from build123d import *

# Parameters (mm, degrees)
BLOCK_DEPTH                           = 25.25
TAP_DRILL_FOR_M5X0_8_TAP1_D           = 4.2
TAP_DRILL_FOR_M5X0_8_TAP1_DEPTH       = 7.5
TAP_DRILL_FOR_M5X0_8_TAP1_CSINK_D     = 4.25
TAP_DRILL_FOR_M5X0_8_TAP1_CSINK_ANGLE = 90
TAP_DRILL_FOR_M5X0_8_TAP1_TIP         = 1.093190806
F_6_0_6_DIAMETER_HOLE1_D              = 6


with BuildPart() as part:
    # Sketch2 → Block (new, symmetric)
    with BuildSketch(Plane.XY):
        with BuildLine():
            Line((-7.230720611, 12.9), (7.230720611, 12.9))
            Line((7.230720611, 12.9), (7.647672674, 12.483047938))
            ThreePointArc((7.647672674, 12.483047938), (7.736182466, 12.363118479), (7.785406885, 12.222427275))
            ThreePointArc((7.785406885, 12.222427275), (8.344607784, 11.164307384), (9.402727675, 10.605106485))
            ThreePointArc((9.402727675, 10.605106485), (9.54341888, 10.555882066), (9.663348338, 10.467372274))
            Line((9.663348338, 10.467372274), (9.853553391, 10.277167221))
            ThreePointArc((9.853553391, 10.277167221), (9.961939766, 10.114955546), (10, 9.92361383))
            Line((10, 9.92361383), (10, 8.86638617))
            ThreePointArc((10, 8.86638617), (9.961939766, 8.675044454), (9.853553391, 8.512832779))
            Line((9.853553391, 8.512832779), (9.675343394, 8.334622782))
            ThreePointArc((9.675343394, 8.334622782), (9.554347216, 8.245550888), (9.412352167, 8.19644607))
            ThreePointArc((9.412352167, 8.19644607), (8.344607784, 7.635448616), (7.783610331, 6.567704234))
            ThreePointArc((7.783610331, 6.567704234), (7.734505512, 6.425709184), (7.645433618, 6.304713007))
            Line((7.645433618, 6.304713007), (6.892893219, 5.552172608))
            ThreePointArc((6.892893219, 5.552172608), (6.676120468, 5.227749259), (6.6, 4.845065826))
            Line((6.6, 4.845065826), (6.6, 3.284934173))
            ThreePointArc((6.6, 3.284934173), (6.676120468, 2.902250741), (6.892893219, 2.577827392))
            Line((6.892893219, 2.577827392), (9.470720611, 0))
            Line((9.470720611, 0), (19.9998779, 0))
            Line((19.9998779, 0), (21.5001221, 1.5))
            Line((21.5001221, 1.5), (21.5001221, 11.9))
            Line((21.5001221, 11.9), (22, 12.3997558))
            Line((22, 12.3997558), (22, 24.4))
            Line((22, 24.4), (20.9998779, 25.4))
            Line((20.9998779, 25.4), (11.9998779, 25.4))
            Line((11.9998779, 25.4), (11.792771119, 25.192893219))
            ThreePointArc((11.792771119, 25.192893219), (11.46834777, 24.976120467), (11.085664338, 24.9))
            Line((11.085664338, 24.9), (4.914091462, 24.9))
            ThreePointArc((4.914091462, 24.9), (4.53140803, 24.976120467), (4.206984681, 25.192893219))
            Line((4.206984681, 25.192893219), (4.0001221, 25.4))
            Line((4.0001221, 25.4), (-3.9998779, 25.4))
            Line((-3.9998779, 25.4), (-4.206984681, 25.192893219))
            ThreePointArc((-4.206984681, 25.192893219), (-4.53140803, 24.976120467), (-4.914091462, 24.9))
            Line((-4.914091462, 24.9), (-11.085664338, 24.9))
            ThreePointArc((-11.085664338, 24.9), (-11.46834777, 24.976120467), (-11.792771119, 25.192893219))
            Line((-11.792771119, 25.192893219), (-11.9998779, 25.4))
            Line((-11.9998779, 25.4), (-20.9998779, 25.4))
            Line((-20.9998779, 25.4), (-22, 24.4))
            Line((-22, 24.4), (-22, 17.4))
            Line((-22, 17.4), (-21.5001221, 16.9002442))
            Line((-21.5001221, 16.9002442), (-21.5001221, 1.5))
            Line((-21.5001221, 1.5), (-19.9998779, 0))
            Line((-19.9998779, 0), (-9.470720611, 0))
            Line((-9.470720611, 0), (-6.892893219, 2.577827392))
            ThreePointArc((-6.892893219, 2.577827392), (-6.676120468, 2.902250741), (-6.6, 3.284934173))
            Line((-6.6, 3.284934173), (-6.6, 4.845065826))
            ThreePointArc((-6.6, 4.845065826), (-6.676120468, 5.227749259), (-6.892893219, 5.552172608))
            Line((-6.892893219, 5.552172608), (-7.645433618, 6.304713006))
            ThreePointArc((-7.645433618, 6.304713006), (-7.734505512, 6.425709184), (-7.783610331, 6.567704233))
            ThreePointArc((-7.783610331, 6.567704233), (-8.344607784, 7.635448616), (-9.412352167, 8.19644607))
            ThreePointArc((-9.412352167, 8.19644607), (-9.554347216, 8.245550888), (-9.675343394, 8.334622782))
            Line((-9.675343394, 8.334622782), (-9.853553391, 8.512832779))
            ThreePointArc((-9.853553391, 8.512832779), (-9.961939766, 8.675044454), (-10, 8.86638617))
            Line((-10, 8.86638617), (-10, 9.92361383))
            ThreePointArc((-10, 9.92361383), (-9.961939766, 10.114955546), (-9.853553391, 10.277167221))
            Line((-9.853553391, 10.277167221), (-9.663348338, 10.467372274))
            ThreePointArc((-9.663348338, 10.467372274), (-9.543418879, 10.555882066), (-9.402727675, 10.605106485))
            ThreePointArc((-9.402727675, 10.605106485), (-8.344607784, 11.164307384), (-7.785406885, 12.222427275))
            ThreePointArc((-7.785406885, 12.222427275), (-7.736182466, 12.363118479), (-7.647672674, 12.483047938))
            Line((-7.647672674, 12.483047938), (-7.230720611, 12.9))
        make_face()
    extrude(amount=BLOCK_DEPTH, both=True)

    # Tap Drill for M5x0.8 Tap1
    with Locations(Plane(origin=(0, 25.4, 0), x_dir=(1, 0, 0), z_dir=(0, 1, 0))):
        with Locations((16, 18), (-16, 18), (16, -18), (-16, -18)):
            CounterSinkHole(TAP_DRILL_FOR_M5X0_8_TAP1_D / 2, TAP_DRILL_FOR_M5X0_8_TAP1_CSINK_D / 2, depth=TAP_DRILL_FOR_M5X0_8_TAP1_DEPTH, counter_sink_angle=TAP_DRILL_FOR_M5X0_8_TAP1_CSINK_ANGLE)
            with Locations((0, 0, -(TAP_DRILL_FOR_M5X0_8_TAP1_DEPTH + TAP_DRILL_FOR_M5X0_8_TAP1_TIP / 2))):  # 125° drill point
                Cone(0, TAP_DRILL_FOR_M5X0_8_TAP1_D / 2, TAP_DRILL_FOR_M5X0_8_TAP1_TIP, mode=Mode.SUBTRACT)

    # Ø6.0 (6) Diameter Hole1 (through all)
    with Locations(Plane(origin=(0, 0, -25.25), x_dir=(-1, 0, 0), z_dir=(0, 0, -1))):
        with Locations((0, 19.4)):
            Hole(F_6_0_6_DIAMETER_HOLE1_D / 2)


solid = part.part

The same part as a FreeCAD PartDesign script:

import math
import FreeCAD as App
import Part
import Sketcher

V = App.Vector

doc = App.newDocument("Part")
body = doc.addObject("PartDesign::Body", "Body")

sketch1 = body.newObject("Sketcher::SketchObject", "Sketch")
sketch1.AttachmentSupport = (doc.getObject("XY_Plane"), [""])
sketch1.MapMode = "FlatFace"
sketch1.addGeometry([
    Part.LineSegment(V(-7.23, 12.9, 0), V(7.23, 12.9, 0)),
    Part.LineSegment(V(7.23, 12.9, 0), V(7.65, 12.48, 0)),
    Part.ArcOfCircle(Part.Circle(V(7.29, 12.13, 0), V(0, 0, 1), 0.5), math.radians(11), math.radians(45)),
    Part.ArcOfCircle(Part.Circle(V(9.78, 12.6, 0), V(0, 0, 1), 2.03), math.radians(-169), math.radians(-101)),
    Part.ArcOfCircle(Part.Circle(V(9.31, 10.11, 0), V(0, 0, 1), 0.5), math.radians(45), math.radians(79)),
    Part.LineSegment(V(9.66, 10.47, 0), V(9.85, 10.28, 0)),
    Part.ArcOfCircle(Part.Circle(V(9.5, 9.92, 0), V(0, 0, 1), 0.5), math.radians(0), math.radians(45)),
    Part.LineSegment(V(10, 9.92, 0), V(10, 8.87, 0)),
    Part.ArcOfCircle(Part.Circle(V(9.5, 8.87, 0), V(0, 0, 1), 0.5), math.radians(-45), math.radians(0)),
    Part.LineSegment(V(9.85, 8.51, 0), V(9.68, 8.33, 0)),
    Part.ArcOfCircle(Part.Circle(V(9.32, 8.69, 0), V(0, 0, 1), 0.5), math.radians(-80), math.radians(-45)),
    Part.ArcOfCircle(Part.Circle(V(9.78, 6.2, 0), V(0, 0, 1), 2.03), math.radians(100), math.radians(170)),
    Part.ArcOfCircle(Part.Circle(V(7.29, 6.66, 0), V(0, 0, 1), 0.5), math.radians(-45), math.radians(-10)),
    Part.LineSegment(V(7.65, 6.3, 0), V(6.89, 5.55, 0)),
    Part.ArcOfCircle(Part.Circle(V(7.6, 4.85, 0), V(0, 0, 1), 1), math.radians(135), math.radians(180)),
    Part.LineSegment(V(6.6, 4.85, 0), V(6.6, 3.28, 0)),
    Part.ArcOfCircle(Part.Circle(V(7.6, 3.28, 0), V(0, 0, 1), 1), math.radians(-180), math.radians(-135)),
    Part.LineSegment(V(6.89, 2.58, 0), V(9.47, 0, 0)),
    Part.LineSegment(V(9.47, 0, 0), V(20, 0, 0)),
    Part.LineSegment(V(20, 0, 0), V(21.5, 1.5, 0)),
    Part.LineSegment(V(21.5, 1.5, 0), V(21.5, 11.9, 0)),
    Part.LineSegment(V(21.5, 11.9, 0), V(22, 12.4, 0)),
    Part.LineSegment(V(22, 12.4, 0), V(22, 24.4, 0)),
    Part.LineSegment(V(22, 24.4, 0), V(21, 25.4, 0)),
    Part.LineSegment(V(21, 25.4, 0), V(12, 25.4, 0)),
    Part.LineSegment(V(12, 25.4, 0), V(11.79, 25.19, 0)),
    Part.ArcOfCircle(Part.Circle(V(11.09, 25.9, 0), V(0, 0, 1), 1), math.radians(-90), math.radians(-45)),
    Part.LineSegment(V(11.09, 24.9, 0), V(4.91, 24.9, 0)),
    Part.ArcOfCircle(Part.Circle(V(4.91, 25.9, 0), V(0, 0, 1), 1), math.radians(-135), math.radians(-90)),
    Part.LineSegment(V(4.21, 25.19, 0), V(4, 25.4, 0)),
    Part.LineSegment(V(4, 25.4, 0), V(-4, 25.4, 0)),
    Part.LineSegment(V(-4, 25.4, 0), V(-4.21, 25.19, 0)),
    Part.ArcOfCircle(Part.Circle(V(-4.91, 25.9, 0), V(0, 0, 1), 1), math.radians(-90), math.radians(-45)),
    Part.LineSegment(V(-4.91, 24.9, 0), V(-11.09, 24.9, 0)),
    Part.ArcOfCircle(Part.Circle(V(-11.09, 25.9, 0), V(0, 0, 1), 1), math.radians(-135), math.radians(-90)),
    Part.LineSegment(V(-11.79, 25.19, 0), V(-12, 25.4, 0)),
    Part.LineSegment(V(-12, 25.4, 0), V(-21, 25.4, 0)),
    Part.LineSegment(V(-21, 25.4, 0), V(-22, 24.4, 0)),
    Part.LineSegment(V(-22, 24.4, 0), V(-22, 17.4, 0)),
    Part.LineSegment(V(-22, 17.4, 0), V(-21.5, 16.9, 0)),
    Part.LineSegment(V(-21.5, 16.9, 0), V(-21.5, 1.5, 0)),
    Part.LineSegment(V(-21.5, 1.5, 0), V(-20, 0, 0)),
    Part.LineSegment(V(-20, 0, 0), V(-9.47, 0, 0)),
    Part.LineSegment(V(-9.47, 0, 0), V(-6.89, 2.58, 0)),
    Part.ArcOfCircle(Part.Circle(V(-7.6, 3.28, 0), V(0, 0, 1), 1), math.radians(-45), math.radians(0)),
    Part.LineSegment(V(-6.6, 3.28, 0), V(-6.6, 4.85, 0)),
    Part.ArcOfCircle(Part.Circle(V(-7.6, 4.85, 0), V(0, 0, 1), 1), math.radians(0), math.radians(45)),
    Part.LineSegment(V(-6.89, 5.55, 0), V(-7.65, 6.3, 0)),
    Part.ArcOfCircle(Part.Circle(V(-7.29, 6.66, 0), V(0, 0, 1), 0.5), math.radians(-170), math.radians(-135)),
    Part.ArcOfCircle(Part.Circle(V(-9.78, 6.2, 0), V(0, 0, 1), 2.03), math.radians(10), math.radians(80)),
    Part.ArcOfCircle(Part.Circle(V(-9.32, 8.69, 0), V(0, 0, 1), 0.5), math.radians(-135), math.radians(-100)),
    Part.LineSegment(V(-9.68, 8.33, 0), V(-9.85, 8.51, 0)),
    Part.ArcOfCircle(Part.Circle(V(-9.5, 8.87, 0), V(0, 0, 1), 0.5), math.radians(-180), math.radians(-135)),
    Part.LineSegment(V(-10, 8.87, 0), V(-10, 9.92, 0)),
    Part.ArcOfCircle(Part.Circle(V(-9.5, 9.92, 0), V(0, 0, 1), 0.5), math.radians(135), math.radians(180)),
    Part.LineSegment(V(-9.85, 10.28, 0), V(-9.66, 10.47, 0)),
    Part.ArcOfCircle(Part.Circle(V(-9.31, 10.11, 0), V(0, 0, 1), 0.5), math.radians(101), math.radians(135)),
    Part.ArcOfCircle(Part.Circle(V(-9.78, 12.6, 0), V(0, 0, 1), 2.03), math.radians(-79), math.radians(-11)),
    Part.ArcOfCircle(Part.Circle(V(-7.29, 12.13, 0), V(0, 0, 1), 0.5), math.radians(135), math.radians(169)),
    Part.LineSegment(V(-7.65, 12.48, 0), V(-7.23, 12.9, 0)),
], False)
sketch1.addConstraint([
    Sketcher.Constraint("Coincident", 0, 2, 1, 1),
    Sketcher.Constraint("Tangent", 1, 2, 2, 2),
    Sketcher.Constraint("Tangent", 2, 1, 3, 1),
    Sketcher.Constraint("Tangent", 3, 2, 4, 2),
    Sketcher.Constraint("Tangent", 4, 1, 5, 1),
    Sketcher.Constraint("Tangent", 5, 2, 6, 2),
    Sketcher.Constraint("Tangent", 6, 1, 7, 1),
    Sketcher.Constraint("Tangent", 7, 2, 8, 2),
    Sketcher.Constraint("Tangent", 8, 1, 9, 1),
    Sketcher.Constraint("Tangent", 9, 2, 10, 2),
    Sketcher.Constraint("Tangent", 10, 1, 11, 1),
    Sketcher.Constraint("Tangent", 11, 2, 12, 2),
    Sketcher.Constraint("Tangent", 12, 1, 13, 1),
    Sketcher.Constraint("Tangent", 13, 2, 14, 1),
    Sketcher.Constraint("Tangent", 14, 2, 15, 1),
    Sketcher.Constraint("Tangent", 15, 2, 16, 1),
    Sketcher.Constraint("Tangent", 16, 2, 17, 1),
    Sketcher.Constraint("Coincident", 17, 2, 18, 1),
    Sketcher.Constraint("Coincident", 18, 2, 19, 1),
    Sketcher.Constraint("Coincident", 19, 2, 20, 1),
    Sketcher.Constraint("Coincident", 20, 2, 21, 1),
    Sketcher.Constraint("Coincident", 21, 2, 22, 1),
    Sketcher.Constraint("Coincident", 22, 2, 23, 1),
    Sketcher.Constraint("Coincident", 23, 2, 24, 1),
    Sketcher.Constraint("Coincident", 24, 2, 25, 1),
    Sketcher.Constraint("Tangent", 25, 2, 26, 2),
    Sketcher.Constraint("Tangent", 26, 1, 27, 1),
    Sketcher.Constraint("Tangent", 27, 2, 28, 2),
    Sketcher.Constraint("Coincident", 28, 1, 29, 1),
    Sketcher.Constraint("Coincident", 29, 2, 30, 1),
    Sketcher.Constraint("Coincident", 30, 2, 31, 1),
    Sketcher.Constraint("Tangent", 31, 2, 32, 2),
    Sketcher.Constraint("Tangent", 32, 1, 33, 1),
    Sketcher.Constraint("Tangent", 33, 2, 34, 2),
    Sketcher.Constraint("Tangent", 34, 1, 35, 1),
    Sketcher.Constraint("Coincident", 35, 2, 36, 1),
    Sketcher.Constraint("Coincident", 36, 2, 37, 1),
    Sketcher.Constraint("Coincident", 37, 2, 38, 1),
    Sketcher.Constraint("Coincident", 38, 2, 39, 1),
    Sketcher.Constraint("Coincident", 39, 2, 40, 1),
    Sketcher.Constraint("Coincident", 40, 2, 41, 1),
    Sketcher.Constraint("Coincident", 41, 2, 42, 1),
    Sketcher.Constraint("Coincident", 42, 2, 43, 1),
    Sketcher.Constraint("Tangent", 43, 2, 44, 1),
    Sketcher.Constraint("Tangent", 44, 2, 45, 1),
    Sketcher.Constraint("Tangent", 45, 2, 46, 1),
    Sketcher.Constraint("Tangent", 46, 2, 47, 1),
    Sketcher.Constraint("Tangent", 47, 2, 48, 2),
    Sketcher.Constraint("Tangent", 48, 1, 49, 1),
    Sketcher.Constraint("Tangent", 49, 2, 50, 2),
    Sketcher.Constraint("Tangent", 50, 1, 51, 1),
    Sketcher.Constraint("Tangent", 51, 2, 52, 2),
    Sketcher.Constraint("Tangent", 52, 1, 53, 1),
    Sketcher.Constraint("Tangent", 53, 2, 54, 2),
    Sketcher.Constraint("Tangent", 54, 1, 55, 1),
    Sketcher.Constraint("Tangent", 55, 2, 56, 2),
    Sketcher.Constraint("Tangent", 56, 1, 57, 1),
    Sketcher.Constraint("Tangent", 57, 2, 58, 2),
    Sketcher.Constraint("Tangent", 58, 1, 59, 1),
    Sketcher.Constraint("Coincident", 59, 2, 0, 1),
    Sketcher.Constraint("Horizontal", 0),
    Sketcher.Constraint("Vertical", 7),
    Sketcher.Constraint("Vertical", 15),
    Sketcher.Constraint("Horizontal", 18),
    Sketcher.Constraint("Vertical", 20),
    Sketcher.Constraint("Vertical", 22),
    Sketcher.Constraint("Horizontal", 24),
    Sketcher.Constraint("Horizontal", 27),
    Sketcher.Constraint("Horizontal", 30),
    Sketcher.Constraint("Horizontal", 33),
    Sketcher.Constraint("Horizontal", 36),
    Sketcher.Constraint("Vertical", 38),
    Sketcher.Constraint("Vertical", 40),
    Sketcher.Constraint("Horizontal", 42),
    Sketcher.Constraint("Vertical", 45),
    Sketcher.Constraint("Vertical", 53),
    Sketcher.Constraint("Equal", 2, 4),
    Sketcher.Constraint("Equal", 4, 6),
    Sketcher.Constraint("Equal", 6, 8),
    Sketcher.Constraint("Equal", 8, 10),
    Sketcher.Constraint("Equal", 3, 11),
    Sketcher.Constraint("Equal", 10, 12),
    Sketcher.Constraint("Equal", 14, 16),
    Sketcher.Constraint("Equal", 16, 26),
    Sketcher.Constraint("Equal", 26, 28),
    Sketcher.Constraint("Equal", 28, 32),
    Sketcher.Constraint("Equal", 32, 34),
    Sketcher.Constraint("Equal", 34, 44),
    Sketcher.Constraint("Equal", 44, 46),
    Sketcher.Constraint("Equal", 12, 48),
    Sketcher.Constraint("Equal", 11, 49),
    Sketcher.Constraint("Equal", 48, 50),
    Sketcher.Constraint("Equal", 50, 52),
    Sketcher.Constraint("Equal", 52, 54),
    Sketcher.Constraint("Equal", 54, 56),
    Sketcher.Constraint("Equal", 49, 57),
    Sketcher.Constraint("Equal", 56, 58),
    Sketcher.Constraint("Symmetric", 18, 2, 41, 2, -1, 1),
    Sketcher.Constraint("Symmetric", 28, 3, 32, 3, -2),
    Sketcher.Constraint("Symmetric", 16, 3, 44, 3, -2),
    Sketcher.Constraint("Symmetric", 12, 3, 48, 3, -2),
    Sketcher.Constraint("Symmetric", 10, 3, 50, 3, -2),
    Sketcher.Constraint("Symmetric", 8, 3, 52, 3, -2),
    Sketcher.Constraint("Symmetric", 4, 3, 56, 3, -2),
    Sketcher.Constraint("Symmetric", 2, 3, 58, 3, -2),
    Sketcher.Constraint("Symmetric", 25, 2, 34, 1, -2),
    Sketcher.Constraint("Symmetric", 23, 2, 36, 2, -2),
    Sketcher.Constraint("Symmetric", 22, 2, 37, 2, -2),
    Sketcher.Constraint("Symmetric", 19, 2, 40, 2, -2),
    Sketcher.Constraint("Symmetric", 17, 2, 42, 2, -2),
    Sketcher.Constraint("Parallel", 1, 5),
    Sketcher.Constraint("Perpendicular", 5, 9),
    Sketcher.Constraint("Parallel", 9, 13),
    Sketcher.Constraint("Perpendicular", 13, 17),
    Sketcher.Constraint("Perpendicular", 17, 25),
    Sketcher.Constraint("Parallel", 25, 31),
    Sketcher.Constraint("Perpendicular", 31, 35),
    Sketcher.Constraint("Perpendicular", 43, 47),
    Sketcher.Constraint("Perpendicular", 51, 55),
    Sketcher.Constraint("Parallel", 55, 59),
    Sketcher.Constraint("Horizontal", 25, 2, 28, 1),
    Sketcher.Constraint("Horizontal", 24, 2, 29, 2),
    Sketcher.Constraint("Vertical", 3, 3, 11, 3),
    Sketcher.Constraint("Equal", 21, 39),
    Sketcher.Constraint("Radius", 14, 1.0),
    Sketcher.Constraint("Radius", 2, 0.5),
    Sketcher.Constraint("DistanceX", 24, 2, 24, 1, 9.0),
    Sketcher.Constraint("DistanceX", 30, 2, 30, 1, 8.0),
    Sketcher.Constraint("DistanceY", 38, 2, 38, 1, 7.0),
    Sketcher.Constraint("Radius", 3, 2.03),
    Sketcher.Constraint("DistanceY", 20, 1, 20, 2, 10.4),
    Sketcher.Constraint("DistanceX", -1, 1, 6, 1, 10.0),
    Sketcher.Constraint("DistanceX", -1, 1, 21, 2, 22.0),
    Sketcher.Constraint("DistanceX", -1, 1, 14, 3, 7.6),
    Sketcher.Constraint("DistanceY", -1, 1, 26, 3, 25.9),
    Sketcher.Constraint("DistanceY", -1, 1, 0, 2, 12.9),
    Sketcher.Constraint("DistanceY", -1, 1, 19, 2, 1.5),
    Sketcher.Constraint("DistanceY", -1, 1, 22, 2, 24.4),
    Sketcher.Constraint("DistanceY", -1, 1, 23, 2, 25.4),
    Sketcher.Constraint("Distance", 17, 3.645598),
    Sketcher.Constraint("Distance", 23, 1.4143),
    Sketcher.Constraint("DistanceX", 0, 1, 0, 2, 14.461441),
    Sketcher.Constraint("DistanceY", 15, 2, 15, 1, 1.560132),
    Sketcher.Constraint("Distance", 1, 0.589659),
    Sketcher.Constraint("Distance", 5, 0.268991),
    Sketcher.Constraint("Distance", 29, 0.292721),
    Sketcher.Constraint("DistanceX", 18, 1, 18, 2, 10.529157),
    Sketcher.Constraint("DistanceY", 7, 2, 7, 1, 1.057228),
    Sketcher.Constraint("DistanceY", 22, 1, 22, 2, 12.000244),
    Sketcher.Constraint("DistanceY", -1, 1, 4, 3, 10.113819),
    Sketcher.Constraint("DistanceX", -1, 1, 10, 3, 9.32179),
    Sketcher.Constraint("Distance", 19, 2.121493),
])
pad1 = body.newObject("PartDesign::Pad", "Pad")
pad1.Profile = sketch1
pad1.Length = 50.5
pad1.Midplane = True

sketch2 = body.newObject("Sketcher::SketchObject", "Sketch001")
sketch2.AttachmentSupport = (doc.getObject("XZ_Plane"), [""])
sketch2.MapMode = "FlatFace"
sketch2.AttachmentOffset = App.Placement(V(0, 0, -25.4), App.Rotation())
sketch2.addGeometry([
    Part.Circle(V(16, -18, 0), V(0, 0, 1), 2.1),
    Part.Circle(V(-16, -18, 0), V(0, 0, 1), 2.1),
    Part.Circle(V(16, 18, 0), V(0, 0, 1), 2.1),
    Part.Circle(V(-16, 18, 0), V(0, 0, 1), 2.1),
], False)
sketch2.addConstraint([
    Sketcher.Constraint("Equal", 0, 1),
    Sketcher.Constraint("Equal", 1, 2),
    Sketcher.Constraint("Equal", 2, 3),
    Sketcher.Constraint("Symmetric", 1, 3, 2, 3, -1, 1),
    Sketcher.Constraint("Symmetric", 0, 3, 3, 3, -1, 1),
    Sketcher.Constraint("Symmetric", 0, 3, 1, 3, -2),
    Sketcher.Constraint("Diameter", 0, 4.2),
    Sketcher.Constraint("DistanceX", -1, 1, 0, 3, 16.0),
    Sketcher.Constraint("DistanceY", 0, 3, -1, 1, 18.0),
])
doc.recompute()
hole = body.newObject("PartDesign::Hole", "Hole")
hole.Profile = sketch2
hole.ThreadType = "None"
hole.Diameter = 4.2
hole.DepthType = "Dimension"
hole.Depth = 7.5
hole.DrillPoint = "Angled"
hole.DrillPointAngle = 125
hole.HoleCutType = "Countersink"
hole.HoleCutDiameter = 4.25
hole.HoleCutCountersinkAngle = 90
hole.Reversed = True

sketch3 = body.newObject("Sketcher::SketchObject", "Sketch002")
sketch3.AttachmentSupport = (doc.getObject("XY_Plane"), [""])
sketch3.MapMode = "FlatFace"
sketch3.AttachmentOffset = App.Placement(V(0, 0, -25.25), App.Rotation())
sketch3.addGeometry(Part.Circle(V(0, 19.4, 0), V(0, 0, 1), 3), False)
sketch3.addConstraint([
    Sketcher.Constraint("PointOnObject", 0, 3, -2),
    Sketcher.Constraint("Diameter", 0, 6.0),
    Sketcher.Constraint("DistanceY", -1, 1, 0, 3, 19.4),
])
doc.recompute()
hole2 = body.newObject("PartDesign::Hole", "Hole001")
hole2.Profile = sketch3
hole2.ThreadType = "None"
hole2.Diameter = 6
hole2.DepthType = "ThroughAll"
hole2.Reversed = True

doc.recompute()
